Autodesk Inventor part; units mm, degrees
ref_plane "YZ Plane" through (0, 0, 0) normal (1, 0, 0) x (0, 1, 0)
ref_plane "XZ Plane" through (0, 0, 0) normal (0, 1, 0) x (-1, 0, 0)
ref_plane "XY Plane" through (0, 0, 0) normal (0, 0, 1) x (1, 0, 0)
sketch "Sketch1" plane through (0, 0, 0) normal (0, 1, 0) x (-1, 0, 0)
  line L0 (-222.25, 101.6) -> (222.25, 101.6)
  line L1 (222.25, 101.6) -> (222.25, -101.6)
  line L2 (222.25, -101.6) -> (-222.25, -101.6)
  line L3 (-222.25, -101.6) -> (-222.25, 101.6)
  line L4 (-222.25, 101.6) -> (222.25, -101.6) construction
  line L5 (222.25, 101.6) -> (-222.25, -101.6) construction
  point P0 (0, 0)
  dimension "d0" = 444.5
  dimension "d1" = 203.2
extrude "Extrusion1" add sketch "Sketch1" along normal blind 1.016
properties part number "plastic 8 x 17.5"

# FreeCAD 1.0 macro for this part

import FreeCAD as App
import Part
import Sketcher

V = App.Vector
Q = App.Units.Quantity

doc = App.newDocument("Part")
body = doc.addObject("PartDesign::Body", "Body")

sketch1 = body.newObject("Sketcher::SketchObject", "Sketch")
sketch1.AttachmentSupport = (doc.getObject("XZ_Plane"), [""])
sketch1.MapMode = "FlatFace"
sketch1.addGeometry([
    Part.LineSegment(V(-222, 102, 0), V(222, 102, 0)),
    Part.LineSegment(V(222, 102, 0), V(222, -102, 0)),
    Part.LineSegment(V(222, -102, 0), V(-222, -102, 0)),
    Part.LineSegment(V(-222, -102, 0), V(-222, 102, 0)),
], False)
sketch1.addConstraint([
    Sketcher.Constraint("Coincident", 0, 2, 1, 1),
    Sketcher.Constraint("Coincident", 1, 2, 2, 1),
    Sketcher.Constraint("Coincident", 2, 2, 3, 1),
    Sketcher.Constraint("Coincident", 3, 2, 0, 1),
    Sketcher.Constraint("Horizontal", 0),
    Sketcher.Constraint("Vertical", 1),
    Sketcher.Constraint("Horizontal", 2),
    Sketcher.Constraint("Vertical", 3),
    Sketcher.Constraint("Symmetric", 0, 2, 2, 2, -1, 1),
    Sketcher.Constraint("DistanceY", 1, 2, 1, 1, Q("8 in")),
    Sketcher.Constraint("DistanceX", 0, 1, 0, 2, Q("17.5 in")),
])
pad1 = body.newObject("PartDesign::Pad", "Pad")
pad1.Profile = sketch1
pad1.Length = Q("0.04 in")
pad1.Reversed = True

doc.recompute()
